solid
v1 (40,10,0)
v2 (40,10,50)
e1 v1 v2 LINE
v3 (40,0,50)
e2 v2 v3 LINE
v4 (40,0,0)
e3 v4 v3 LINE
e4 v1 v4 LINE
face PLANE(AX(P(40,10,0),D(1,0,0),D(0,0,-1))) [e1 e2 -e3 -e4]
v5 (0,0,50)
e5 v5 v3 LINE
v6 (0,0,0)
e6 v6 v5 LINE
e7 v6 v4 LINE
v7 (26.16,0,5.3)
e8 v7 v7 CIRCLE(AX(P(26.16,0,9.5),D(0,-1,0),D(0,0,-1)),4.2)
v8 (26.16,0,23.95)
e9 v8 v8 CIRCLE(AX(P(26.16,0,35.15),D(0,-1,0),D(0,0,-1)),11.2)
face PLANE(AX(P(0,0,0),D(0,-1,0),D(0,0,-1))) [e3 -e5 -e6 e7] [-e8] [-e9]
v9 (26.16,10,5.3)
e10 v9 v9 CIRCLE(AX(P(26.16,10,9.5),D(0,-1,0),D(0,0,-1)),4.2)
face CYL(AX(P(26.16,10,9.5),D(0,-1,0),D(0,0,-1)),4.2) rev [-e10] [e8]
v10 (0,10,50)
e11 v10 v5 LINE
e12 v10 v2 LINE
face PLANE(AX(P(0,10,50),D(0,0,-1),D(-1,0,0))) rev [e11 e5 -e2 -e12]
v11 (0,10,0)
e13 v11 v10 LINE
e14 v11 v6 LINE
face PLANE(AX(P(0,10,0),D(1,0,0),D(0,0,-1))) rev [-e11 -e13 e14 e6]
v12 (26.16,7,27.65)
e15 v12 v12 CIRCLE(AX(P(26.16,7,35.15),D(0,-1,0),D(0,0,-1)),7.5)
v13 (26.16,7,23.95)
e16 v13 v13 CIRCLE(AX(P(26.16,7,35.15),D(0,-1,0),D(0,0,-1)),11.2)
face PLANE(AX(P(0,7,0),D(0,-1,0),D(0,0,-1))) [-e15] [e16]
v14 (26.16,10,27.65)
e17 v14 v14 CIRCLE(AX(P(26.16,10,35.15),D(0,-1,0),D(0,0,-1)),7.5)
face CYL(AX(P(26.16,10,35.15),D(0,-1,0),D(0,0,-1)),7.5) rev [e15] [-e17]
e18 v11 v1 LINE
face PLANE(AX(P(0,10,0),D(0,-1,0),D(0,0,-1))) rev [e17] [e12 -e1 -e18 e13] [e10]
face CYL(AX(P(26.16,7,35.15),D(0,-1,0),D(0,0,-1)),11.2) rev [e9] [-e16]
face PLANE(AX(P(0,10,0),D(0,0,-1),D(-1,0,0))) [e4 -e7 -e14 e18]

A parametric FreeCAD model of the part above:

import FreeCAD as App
import Part
import Sketcher

V = App.Vector
Q = App.Units.Quantity


def add_polygon(sketch, points):
    """Adds a closed chain of lines whose ends are joined by coincident constraints."""
    first, n = sketch.GeometryCount, len(points)
    for a, b in zip(points, points[1:] + points[:1]):
        sketch.addGeometry(Part.LineSegment(App.Vector(*a, 0), App.Vector(*b, 0)), False)
    for i in range(n):
        sketch.addConstraint(Sketcher.Constraint("Coincident", first + i, 2, first + (i + 1) % n, 1))

doc = App.newDocument("Part")
params = doc.addObject("Spreadsheet::Sheet", "Params")
for row, (alias, value) in enumerate([
    ("sketch1_width", "40 mm"),
    ("sketch1_height", "50 mm"),
    ("pad1_length", "10 mm"),
    ("sketch2_diameter", "22.4 mm"),
    ("pocket1_length", "7 mm"),
    ("sketch3_diameter", "15 mm"),
    ("sketch3_diameter2", "8.4 mm"),
], start=1):
    params.set(f"A{row}", alias)
    params.set(f"B{row}", "=" + value)
    params.setAlias(f"B{row}", alias)

body = doc.addObject("PartDesign::Body", "Body")

# Sketch on XZ plane
sketch1 = body.newObject("Sketcher::SketchObject", "Sketch")
sketch1.AttachmentSupport = (doc.getObject("XZ_Plane"), [""])
sketch1.MapMode = "FlatFace"
add_polygon(sketch1, [(0, 0), (0, 50), (40, 50), (40, 0)])  # lines 0-3
sketch1.addConstraint([
    Sketcher.Constraint("Vertical", 0),
    Sketcher.Constraint("Horizontal", 1),
    Sketcher.Constraint("Vertical", 2),
    Sketcher.Constraint("Horizontal", 3),
    Sketcher.Constraint("Coincident", 3, 2, -1, 1),
    Sketcher.Constraint("DistanceX", 1, 1, 1, 2, Q("40 mm")),
    Sketcher.Constraint("DistanceY", 0, 1, 0, 2, Q("50 mm")),
])
sketch1.setExpression("Constraints[9]", "Params.sketch1_width")
sketch1.setExpression("Constraints[10]", "Params.sketch1_height")
pad1 = body.newObject("PartDesign::Pad", "Pad")
pad1.Profile = sketch1
pad1.setExpression("Length", "Params.pad1_length")
pad1.Reversed = True

# Sketch on XZ plane
sketch2 = body.newObject("Sketcher::SketchObject", "Sketch001")
sketch2.AttachmentSupport = (doc.getObject("XZ_Plane"), [""])
sketch2.MapMode = "FlatFace"
sketch2.addGeometry(Part.Circle(V(26.16, 35.15, 0), V(0, 0, 1), 11.2), False)
sketch2.addConstraint([
    Sketcher.Constraint("Diameter", 0, Q("22.4 mm")),
    Sketcher.Constraint("DistanceX", -1, 1, 0, 3, Q("26.16 mm")),
    Sketcher.Constraint("DistanceY", -1, 1, 0, 3, Q("35.15 mm")),
])
sketch2.setExpression("Constraints[0]", "Params.sketch2_diameter")
pocket1 = body.newObject("PartDesign::Pocket", "Pocket")
pocket1.Profile = sketch2
pocket1.setExpression("Length", "Params.pocket1_length")

# Sketch on XZ plane
sketch3 = body.newObject("Sketcher::SketchObject", "Sketch002")
sketch3.AttachmentSupport = (doc.getObject("XZ_Plane"), [""])
sketch3.MapMode = "FlatFace"
sketch3.addGeometry([
    Part.Circle(V(26.16, 35.15, 0), V(0, 0, 1), 7.5),
    Part.Circle(V(26.16, 9.5, 0), V(0, 0, 1), 4.2),
], False)
sketch3.addConstraint([
    Sketcher.Constraint("Vertical", 0, 3, 1, 3),
    Sketcher.Constraint("Diameter", 0, Q("15 mm")),
    Sketcher.Constraint("Diameter", 1, Q("8.4 mm")),
    Sketcher.Constraint("DistanceY", -1, 1, 1, 3, Q("9.5 mm")),
    Sketcher.Constraint("DistanceX", -1, 1, 0, 3, Q("26.16 mm")),
    Sketcher.Constraint("DistanceY", -1, 1, 0, 3, Q("35.15 mm")),
])
sketch3.setExpression("Constraints[1]", "Params.sketch3_diameter")
sketch3.setExpression("Constraints[2]", "Params.sketch3_diameter2")
pocket2 = body.newObject("PartDesign::Pocket", "Pocket001")
pocket2.Profile = sketch3
pocket2.Type = "ThroughAll"

doc.recompute()
